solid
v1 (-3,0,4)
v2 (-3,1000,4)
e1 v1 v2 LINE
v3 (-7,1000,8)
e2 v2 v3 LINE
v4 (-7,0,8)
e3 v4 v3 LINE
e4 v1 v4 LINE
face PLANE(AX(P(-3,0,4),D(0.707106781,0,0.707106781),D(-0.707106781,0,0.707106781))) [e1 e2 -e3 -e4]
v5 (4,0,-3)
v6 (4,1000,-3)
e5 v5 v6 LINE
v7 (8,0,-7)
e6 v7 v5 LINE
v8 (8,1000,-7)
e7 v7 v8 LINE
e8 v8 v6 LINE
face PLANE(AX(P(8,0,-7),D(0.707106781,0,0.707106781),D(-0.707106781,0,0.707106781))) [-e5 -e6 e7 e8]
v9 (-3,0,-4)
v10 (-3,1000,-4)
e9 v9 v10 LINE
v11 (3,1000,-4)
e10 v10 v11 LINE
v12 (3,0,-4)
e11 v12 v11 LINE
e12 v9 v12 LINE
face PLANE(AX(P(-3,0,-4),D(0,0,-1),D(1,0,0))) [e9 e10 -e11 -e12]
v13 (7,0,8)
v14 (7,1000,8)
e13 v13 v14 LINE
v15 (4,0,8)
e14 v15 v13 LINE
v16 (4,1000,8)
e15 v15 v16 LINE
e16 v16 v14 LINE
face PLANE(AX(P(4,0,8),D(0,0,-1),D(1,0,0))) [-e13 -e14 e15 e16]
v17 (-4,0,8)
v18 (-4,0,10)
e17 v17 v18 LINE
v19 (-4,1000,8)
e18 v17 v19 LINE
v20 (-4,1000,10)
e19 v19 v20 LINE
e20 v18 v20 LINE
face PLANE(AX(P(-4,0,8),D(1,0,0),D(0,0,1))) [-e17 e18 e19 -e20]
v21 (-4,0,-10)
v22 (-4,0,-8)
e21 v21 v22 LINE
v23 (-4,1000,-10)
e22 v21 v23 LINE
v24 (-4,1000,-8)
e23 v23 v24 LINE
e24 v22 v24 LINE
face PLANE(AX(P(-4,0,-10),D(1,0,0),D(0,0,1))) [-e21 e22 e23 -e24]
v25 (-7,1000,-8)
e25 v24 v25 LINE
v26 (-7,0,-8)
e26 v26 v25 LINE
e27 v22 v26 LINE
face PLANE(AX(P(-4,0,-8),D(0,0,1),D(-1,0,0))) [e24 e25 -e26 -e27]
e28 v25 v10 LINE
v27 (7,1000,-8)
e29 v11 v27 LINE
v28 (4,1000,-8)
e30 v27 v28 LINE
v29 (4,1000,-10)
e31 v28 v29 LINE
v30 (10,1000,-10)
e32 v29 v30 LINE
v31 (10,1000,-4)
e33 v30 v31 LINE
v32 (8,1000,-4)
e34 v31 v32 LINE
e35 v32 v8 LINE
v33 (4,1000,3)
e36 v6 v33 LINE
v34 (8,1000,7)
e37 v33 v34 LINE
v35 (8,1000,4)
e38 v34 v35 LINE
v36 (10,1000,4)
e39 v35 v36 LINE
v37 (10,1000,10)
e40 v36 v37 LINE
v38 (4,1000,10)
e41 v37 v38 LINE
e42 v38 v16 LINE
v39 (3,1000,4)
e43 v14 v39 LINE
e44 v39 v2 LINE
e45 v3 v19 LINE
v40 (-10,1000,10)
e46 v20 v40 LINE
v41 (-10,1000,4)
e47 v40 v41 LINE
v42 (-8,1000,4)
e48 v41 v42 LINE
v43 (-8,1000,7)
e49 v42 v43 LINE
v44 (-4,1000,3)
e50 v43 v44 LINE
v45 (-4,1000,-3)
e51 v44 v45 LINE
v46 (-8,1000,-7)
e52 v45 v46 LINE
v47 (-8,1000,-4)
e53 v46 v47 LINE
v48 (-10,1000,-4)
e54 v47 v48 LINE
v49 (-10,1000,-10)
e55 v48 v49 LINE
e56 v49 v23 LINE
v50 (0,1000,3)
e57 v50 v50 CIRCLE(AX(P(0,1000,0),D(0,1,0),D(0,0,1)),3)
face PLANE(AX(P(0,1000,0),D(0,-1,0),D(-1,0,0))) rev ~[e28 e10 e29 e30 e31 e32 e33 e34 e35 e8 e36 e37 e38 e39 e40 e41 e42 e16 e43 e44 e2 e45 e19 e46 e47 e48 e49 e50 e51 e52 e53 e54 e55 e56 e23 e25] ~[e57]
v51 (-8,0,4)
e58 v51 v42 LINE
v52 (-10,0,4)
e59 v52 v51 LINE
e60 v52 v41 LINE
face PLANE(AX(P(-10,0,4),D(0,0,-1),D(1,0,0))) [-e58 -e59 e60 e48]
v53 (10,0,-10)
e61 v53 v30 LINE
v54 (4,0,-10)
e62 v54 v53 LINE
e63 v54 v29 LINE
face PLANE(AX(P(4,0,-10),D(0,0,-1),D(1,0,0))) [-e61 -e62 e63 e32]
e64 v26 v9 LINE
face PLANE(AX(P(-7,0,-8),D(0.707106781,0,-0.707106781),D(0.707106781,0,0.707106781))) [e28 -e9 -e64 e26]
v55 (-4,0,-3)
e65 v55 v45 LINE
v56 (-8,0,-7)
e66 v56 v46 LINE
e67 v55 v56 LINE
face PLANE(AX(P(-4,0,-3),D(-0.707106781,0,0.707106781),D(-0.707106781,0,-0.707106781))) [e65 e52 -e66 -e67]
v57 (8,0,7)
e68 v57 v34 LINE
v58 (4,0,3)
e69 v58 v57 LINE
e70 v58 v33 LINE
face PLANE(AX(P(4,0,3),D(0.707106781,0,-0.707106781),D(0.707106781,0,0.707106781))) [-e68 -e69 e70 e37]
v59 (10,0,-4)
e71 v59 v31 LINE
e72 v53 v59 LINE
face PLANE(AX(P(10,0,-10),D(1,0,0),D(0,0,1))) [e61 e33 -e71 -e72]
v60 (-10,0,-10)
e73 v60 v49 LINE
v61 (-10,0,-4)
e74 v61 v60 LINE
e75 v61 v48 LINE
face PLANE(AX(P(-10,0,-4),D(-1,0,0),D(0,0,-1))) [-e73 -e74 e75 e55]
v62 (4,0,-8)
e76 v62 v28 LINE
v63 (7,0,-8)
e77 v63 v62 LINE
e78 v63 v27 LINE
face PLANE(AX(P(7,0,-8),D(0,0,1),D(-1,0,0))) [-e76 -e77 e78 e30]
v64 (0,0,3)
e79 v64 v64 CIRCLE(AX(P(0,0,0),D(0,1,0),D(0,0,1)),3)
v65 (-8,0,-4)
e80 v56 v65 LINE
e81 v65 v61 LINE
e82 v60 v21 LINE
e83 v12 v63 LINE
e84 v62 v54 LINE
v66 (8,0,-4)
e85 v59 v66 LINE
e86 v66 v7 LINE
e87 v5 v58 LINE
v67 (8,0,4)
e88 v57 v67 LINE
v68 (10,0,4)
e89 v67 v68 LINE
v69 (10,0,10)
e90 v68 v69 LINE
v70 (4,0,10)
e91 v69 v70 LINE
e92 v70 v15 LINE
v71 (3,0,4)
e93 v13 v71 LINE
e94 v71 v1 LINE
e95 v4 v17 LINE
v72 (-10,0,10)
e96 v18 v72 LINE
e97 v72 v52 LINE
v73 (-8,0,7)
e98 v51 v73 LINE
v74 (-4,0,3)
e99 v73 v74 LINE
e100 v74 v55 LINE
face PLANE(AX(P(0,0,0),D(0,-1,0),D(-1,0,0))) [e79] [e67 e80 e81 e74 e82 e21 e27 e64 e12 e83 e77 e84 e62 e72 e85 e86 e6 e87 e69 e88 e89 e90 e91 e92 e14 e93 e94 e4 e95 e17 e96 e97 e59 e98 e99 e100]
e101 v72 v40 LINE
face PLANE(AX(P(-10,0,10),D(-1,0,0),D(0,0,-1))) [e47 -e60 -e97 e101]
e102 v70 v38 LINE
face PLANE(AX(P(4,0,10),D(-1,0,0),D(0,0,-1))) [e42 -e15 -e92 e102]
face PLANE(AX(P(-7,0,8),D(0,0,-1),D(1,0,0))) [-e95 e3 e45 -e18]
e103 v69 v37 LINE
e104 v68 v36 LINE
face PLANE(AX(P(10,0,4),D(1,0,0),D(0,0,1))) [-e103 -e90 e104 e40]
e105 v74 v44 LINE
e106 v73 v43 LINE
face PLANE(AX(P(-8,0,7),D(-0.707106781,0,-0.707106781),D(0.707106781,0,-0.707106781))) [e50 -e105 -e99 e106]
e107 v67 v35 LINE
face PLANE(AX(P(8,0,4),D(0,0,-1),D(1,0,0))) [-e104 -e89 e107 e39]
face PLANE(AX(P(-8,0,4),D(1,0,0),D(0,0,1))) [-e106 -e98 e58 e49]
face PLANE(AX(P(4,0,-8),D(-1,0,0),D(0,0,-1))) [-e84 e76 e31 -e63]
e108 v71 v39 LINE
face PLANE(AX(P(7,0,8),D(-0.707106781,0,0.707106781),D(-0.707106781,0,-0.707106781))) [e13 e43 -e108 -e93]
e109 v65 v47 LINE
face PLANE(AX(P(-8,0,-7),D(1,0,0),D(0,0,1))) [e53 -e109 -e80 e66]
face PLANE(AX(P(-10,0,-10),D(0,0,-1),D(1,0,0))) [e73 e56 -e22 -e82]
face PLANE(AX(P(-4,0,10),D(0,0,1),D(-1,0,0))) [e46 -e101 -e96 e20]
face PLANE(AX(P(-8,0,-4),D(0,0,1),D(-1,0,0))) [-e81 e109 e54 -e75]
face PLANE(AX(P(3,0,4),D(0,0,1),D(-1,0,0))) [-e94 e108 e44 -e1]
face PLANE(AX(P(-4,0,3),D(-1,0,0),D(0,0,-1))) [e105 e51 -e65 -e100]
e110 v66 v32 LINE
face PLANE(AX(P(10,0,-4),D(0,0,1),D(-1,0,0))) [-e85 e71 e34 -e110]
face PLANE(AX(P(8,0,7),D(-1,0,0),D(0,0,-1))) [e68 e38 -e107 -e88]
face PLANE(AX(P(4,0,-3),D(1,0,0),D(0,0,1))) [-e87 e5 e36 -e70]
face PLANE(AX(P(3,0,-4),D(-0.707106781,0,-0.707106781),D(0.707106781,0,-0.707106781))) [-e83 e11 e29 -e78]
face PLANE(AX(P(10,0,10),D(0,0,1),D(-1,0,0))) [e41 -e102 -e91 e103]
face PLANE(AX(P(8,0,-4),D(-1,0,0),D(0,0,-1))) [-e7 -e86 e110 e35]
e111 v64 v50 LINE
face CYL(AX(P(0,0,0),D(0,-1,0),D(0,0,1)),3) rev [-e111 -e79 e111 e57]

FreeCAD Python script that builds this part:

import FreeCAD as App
import Part
import Sketcher

V = App.Vector


def add_polygon(sketch, points):
    """Adds a closed chain of lines whose ends are joined by coincident constraints."""
    first, n = sketch.GeometryCount, len(points)
    for a, b in zip(points, points[1:] + points[:1]):
        sketch.addGeometry(Part.LineSegment(App.Vector(*a, 0), App.Vector(*b, 0)), False)
    for i in range(n):
        sketch.addConstraint(Sketcher.Constraint("Coincident", first + i, 2, first + (i + 1) % n, 1))

doc = App.newDocument("Part")
body = doc.addObject("PartDesign::Body", "Body")

sketch1 = body.newObject("Sketcher::SketchObject", "Sketch")
sketch1.AttachmentSupport = (doc.getObject("XZ_Plane"), [""])
sketch1.MapMode = "FlatFace"
add_polygon(sketch1, [(-4, -8), (-4, -10), (-10, -10), (-10, -4), (-8, -4), (-8, -7), (-4, -3), (-4, 3), (-8, 7), (-8, 4), (-10, 4), (-10, 10), (-4, 10), (-4, 8), (-7, 8), (-3, 4), (3, 4), (7, 8), (4, 8), (4, 10), (10, 10), (10, 4), (8, 4), (8, 7), (4, 3), (4, -3), (8, -7), (8, -4), (10, -4), (10, -10), (4, -10), (4, -8), (7, -8), (3, -4), (-3, -4), (-7, -8)])
sketch1.addGeometry(Part.Circle(V(0, 0, 0), V(0, 0, 1), 3), False)
sketch1.addConstraint(Sketcher.Constraint("Vertical", 0))
sketch1.addConstraint(Sketcher.Constraint("Horizontal", 1))
sketch1.addConstraint(Sketcher.Constraint("Vertical", 2))
sketch1.addConstraint(Sketcher.Constraint("Horizontal", 3))
sketch1.addConstraint(Sketcher.Constraint("Vertical", 4))
sketch1.addConstraint(Sketcher.Constraint("Vertical", 6))
sketch1.addConstraint(Sketcher.Constraint("Vertical", 8))
sketch1.addConstraint(Sketcher.Constraint("Horizontal", 9))
sketch1.addConstraint(Sketcher.Constraint("Vertical", 10))
sketch1.addConstraint(Sketcher.Constraint("Horizontal", 11))
sketch1.addConstraint(Sketcher.Constraint("Vertical", 12))
sketch1.addConstraint(Sketcher.Constraint("Horizontal", 13))
sketch1.addConstraint(Sketcher.Constraint("Horizontal", 15))
sketch1.addConstraint(Sketcher.Constraint("Horizontal", 17))
sketch1.addConstraint(Sketcher.Constraint("Vertical", 18))
sketch1.addConstraint(Sketcher.Constraint("Horizontal", 19))
sketch1.addConstraint(Sketcher.Constraint("Vertical", 20))
sketch1.addConstraint(Sketcher.Constraint("Horizontal", 21))
sketch1.addConstraint(Sketcher.Constraint("Vertical", 22))
sketch1.addConstraint(Sketcher.Constraint("Vertical", 24))
sketch1.addConstraint(Sketcher.Constraint("Vertical", 26))
sketch1.addConstraint(Sketcher.Constraint("Horizontal", 27))
sketch1.addConstraint(Sketcher.Constraint("Vertical", 28))
sketch1.addConstraint(Sketcher.Constraint("Horizontal", 29))
sketch1.addConstraint(Sketcher.Constraint("Vertical", 30))
sketch1.addConstraint(Sketcher.Constraint("Horizontal", 31))
sketch1.addConstraint(Sketcher.Constraint("Horizontal", 33))
sketch1.addConstraint(Sketcher.Constraint("Horizontal", 35))
sketch1.addConstraint(Sketcher.Constraint("Coincident", 36, 3, -1, 1))
sketch1.addConstraint(Sketcher.Constraint("Symmetric", 0, 2, 18, 2, -1, 1))
sketch1.addConstraint(Sketcher.Constraint("Symmetric", 2, 2, 20, 2, -1, 1))
sketch1.addConstraint(Sketcher.Constraint("Symmetric", 4, 2, 22, 2, -1, 1))
sketch1.addConstraint(Sketcher.Constraint("Symmetric", 5, 2, 23, 2, -1, 1))
sketch1.addConstraint(Sketcher.Constraint("Symmetric", 7, 2, 25, 2, -1, 1))
sketch1.addConstraint(Sketcher.Constraint("Symmetric", 9, 2, 27, 2, -1, 1))
sketch1.addConstraint(Sketcher.Constraint("Symmetric", 11, 2, 29, 2, -1, 1))
sketch1.addConstraint(Sketcher.Constraint("Symmetric", 13, 2, 31, 2, -1, 1))
sketch1.addConstraint(Sketcher.Constraint("Symmetric", 14, 2, 32, 2, -1, 1))
sketch1.addConstraint(Sketcher.Constraint("Symmetric", 16, 2, 34, 2, -1, 1))
sketch1.addConstraint(Sketcher.Constraint("Symmetric", 13, 2, 16, 2, -2))
sketch1.addConstraint(Sketcher.Constraint("Symmetric", 11, 2, 18, 2, -2))
sketch1.addConstraint(Sketcher.Constraint("Symmetric", 9, 2, 20, 2, -2))
sketch1.addConstraint(Sketcher.Constraint("Symmetric", 7, 2, 22, 2, -2))
sketch1.addConstraint(Sketcher.Constraint("Perpendicular", 5, 7))
sketch1.addConstraint(Sketcher.Constraint("Parallel", 7, 14))
sketch1.addConstraint(Sketcher.Constraint("Perpendicular", 14, 16))
sketch1.addConstraint(Sketcher.Constraint("Perpendicular", 23, 25))
sketch1.addConstraint(Sketcher.Constraint("Perpendicular", 32, 34))
sketch1.addConstraint(Sketcher.Constraint("Horizontal", 9, 2, 14, 2))
sketch1.addConstraint(Sketcher.Constraint("Horizontal", 6, 2, 23, 2))
sketch1.addConstraint(Sketcher.Constraint("Vertical", 0, 2, 5, 2))
sketch1.addConstraint(Sketcher.Constraint("Equal", 11, 15))
sketch1.addConstraint(Sketcher.Constraint("Equal", 27, 0))
sketch1.addConstraint(Sketcher.Constraint("Equal", 33, 2))
sketch1.addConstraint(Sketcher.Constraint("Equal", 35, 4))
sketch1.addConstraint(Sketcher.Constraint("Equal", 2, 6))
sketch1.addConstraint(Sketcher.Constraint("Diameter", 36, 6.0))
sketch1.addConstraint(Sketcher.Constraint("DistanceX", 1, 2, 1, 1, 6.0))
sketch1.addConstraint(Sketcher.Constraint("DistanceX", 3, 1, 3, 2, 2.0))
sketch1.addConstraint(Sketcher.Constraint("DistanceX", 13, 2, 13, 1, 3.0))
pad1 = body.newObject("PartDesign::Pad", "Pad")
pad1.Profile = sketch1
pad1.Length = 1000
pad1.Reversed = True

doc.recompute()
